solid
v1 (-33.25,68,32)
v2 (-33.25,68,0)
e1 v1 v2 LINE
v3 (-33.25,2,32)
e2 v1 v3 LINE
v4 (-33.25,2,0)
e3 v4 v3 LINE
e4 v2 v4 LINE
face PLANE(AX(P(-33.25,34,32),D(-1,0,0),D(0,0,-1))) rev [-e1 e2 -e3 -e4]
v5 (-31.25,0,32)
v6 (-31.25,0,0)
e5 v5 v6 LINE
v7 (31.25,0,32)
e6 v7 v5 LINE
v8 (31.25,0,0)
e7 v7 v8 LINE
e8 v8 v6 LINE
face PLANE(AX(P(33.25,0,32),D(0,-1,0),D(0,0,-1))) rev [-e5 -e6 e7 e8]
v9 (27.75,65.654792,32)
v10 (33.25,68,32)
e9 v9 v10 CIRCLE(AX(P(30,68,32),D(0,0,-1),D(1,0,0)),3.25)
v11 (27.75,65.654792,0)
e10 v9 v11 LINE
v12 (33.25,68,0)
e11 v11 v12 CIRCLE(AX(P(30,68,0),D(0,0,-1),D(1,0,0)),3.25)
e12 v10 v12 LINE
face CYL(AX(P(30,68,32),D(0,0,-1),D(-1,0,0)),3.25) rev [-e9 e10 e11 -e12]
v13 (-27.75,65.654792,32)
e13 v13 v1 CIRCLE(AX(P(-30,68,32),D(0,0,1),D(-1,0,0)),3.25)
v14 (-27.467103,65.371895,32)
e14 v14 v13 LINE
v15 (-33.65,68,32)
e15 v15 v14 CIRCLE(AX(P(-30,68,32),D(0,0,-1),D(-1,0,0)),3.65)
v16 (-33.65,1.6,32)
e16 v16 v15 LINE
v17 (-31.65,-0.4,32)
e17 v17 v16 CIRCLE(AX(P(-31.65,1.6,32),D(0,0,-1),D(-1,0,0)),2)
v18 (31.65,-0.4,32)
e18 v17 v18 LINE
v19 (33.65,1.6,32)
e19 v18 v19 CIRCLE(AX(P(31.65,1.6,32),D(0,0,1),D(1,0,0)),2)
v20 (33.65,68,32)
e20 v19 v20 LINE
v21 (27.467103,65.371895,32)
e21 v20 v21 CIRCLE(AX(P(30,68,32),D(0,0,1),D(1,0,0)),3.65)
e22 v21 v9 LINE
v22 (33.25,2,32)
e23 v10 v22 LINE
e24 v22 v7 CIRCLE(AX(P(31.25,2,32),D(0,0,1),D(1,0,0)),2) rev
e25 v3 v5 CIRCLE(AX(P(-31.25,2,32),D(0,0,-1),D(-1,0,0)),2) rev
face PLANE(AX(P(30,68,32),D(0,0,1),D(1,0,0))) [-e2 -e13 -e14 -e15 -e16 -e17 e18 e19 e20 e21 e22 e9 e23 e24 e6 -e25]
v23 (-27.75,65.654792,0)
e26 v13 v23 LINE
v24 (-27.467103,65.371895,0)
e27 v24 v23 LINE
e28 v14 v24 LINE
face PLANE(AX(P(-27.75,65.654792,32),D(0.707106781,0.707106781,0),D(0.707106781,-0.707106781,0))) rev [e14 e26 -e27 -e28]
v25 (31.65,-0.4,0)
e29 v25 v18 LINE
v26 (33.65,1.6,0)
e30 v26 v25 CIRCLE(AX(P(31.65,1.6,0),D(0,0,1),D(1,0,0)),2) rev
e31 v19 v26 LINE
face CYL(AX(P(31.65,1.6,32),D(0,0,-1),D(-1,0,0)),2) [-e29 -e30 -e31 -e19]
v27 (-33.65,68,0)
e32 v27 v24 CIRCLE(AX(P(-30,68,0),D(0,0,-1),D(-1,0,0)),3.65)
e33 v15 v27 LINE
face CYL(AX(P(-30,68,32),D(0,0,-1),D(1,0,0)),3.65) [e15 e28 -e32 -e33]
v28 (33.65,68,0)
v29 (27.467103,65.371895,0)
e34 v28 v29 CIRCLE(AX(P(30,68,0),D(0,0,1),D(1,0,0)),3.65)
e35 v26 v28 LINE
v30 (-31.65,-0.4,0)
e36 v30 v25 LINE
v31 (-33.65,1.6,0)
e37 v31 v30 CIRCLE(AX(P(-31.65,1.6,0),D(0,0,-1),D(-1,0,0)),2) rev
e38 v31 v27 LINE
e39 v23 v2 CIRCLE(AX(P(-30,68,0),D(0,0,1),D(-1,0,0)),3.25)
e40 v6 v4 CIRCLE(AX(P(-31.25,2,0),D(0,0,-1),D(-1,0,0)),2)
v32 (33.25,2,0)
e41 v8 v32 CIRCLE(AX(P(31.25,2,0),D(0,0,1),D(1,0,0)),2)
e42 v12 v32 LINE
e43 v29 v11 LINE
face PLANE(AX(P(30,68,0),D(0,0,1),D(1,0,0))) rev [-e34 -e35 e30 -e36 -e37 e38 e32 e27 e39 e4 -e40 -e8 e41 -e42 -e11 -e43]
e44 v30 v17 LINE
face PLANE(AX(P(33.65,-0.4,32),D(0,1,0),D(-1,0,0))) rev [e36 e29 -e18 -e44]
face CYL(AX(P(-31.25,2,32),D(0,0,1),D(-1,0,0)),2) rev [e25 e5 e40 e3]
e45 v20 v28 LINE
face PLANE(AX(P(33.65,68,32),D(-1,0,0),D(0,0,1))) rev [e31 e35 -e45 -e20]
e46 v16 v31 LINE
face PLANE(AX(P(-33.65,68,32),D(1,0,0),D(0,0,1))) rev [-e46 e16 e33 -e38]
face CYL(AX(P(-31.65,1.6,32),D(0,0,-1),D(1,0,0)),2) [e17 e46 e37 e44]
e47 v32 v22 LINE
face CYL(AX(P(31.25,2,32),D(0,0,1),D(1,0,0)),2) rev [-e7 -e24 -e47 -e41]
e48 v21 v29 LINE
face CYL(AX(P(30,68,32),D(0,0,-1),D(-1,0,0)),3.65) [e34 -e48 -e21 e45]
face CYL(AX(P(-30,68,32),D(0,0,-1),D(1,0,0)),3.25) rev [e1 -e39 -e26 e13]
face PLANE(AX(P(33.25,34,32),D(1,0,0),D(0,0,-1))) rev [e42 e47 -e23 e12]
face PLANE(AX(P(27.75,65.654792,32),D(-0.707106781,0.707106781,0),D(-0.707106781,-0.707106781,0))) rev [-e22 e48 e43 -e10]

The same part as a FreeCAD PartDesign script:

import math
import FreeCAD as App
import Part
import Sketcher
Q = App.Units.Quantity


def edges_at(feature, points):
    """Names of the edges that pass closest to the given points."""
    edges = feature.Shape.Edges
    near = lambda p: min(range(len(edges)), key=lambda i: edges[i].distToShape(Part.Vertex(*p))[0])
    return sorted({f"Edge{near(p) + 1}" for p in points})

doc = App.newDocument("Part")
body = doc.addObject("PartDesign::Body", "Body")

# Sketch on XY plane
sketch1 = body.newObject("Sketcher::SketchObject", "Sketch")
sketch1.AttachmentSupport = (doc.getObject("XY_Plane"), [""])
sketch1.MapMode = "FlatFace"
sketch1.addGeometry(Part.LineSegment(App.Vector(33.25, 68, 0), App.Vector(33.25, 0, 0)), False)
sketch1.addGeometry(Part.LineSegment(App.Vector(33.25, 0, 0), App.Vector(0, 0, 0)), False)
sketch1.addGeometry(Part.LineSegment(App.Vector(0, 0, 0), App.Vector(0, -0.4, 0)), False)
sketch1.addGeometry(Part.LineSegment(App.Vector(0, -0.4, 0), App.Vector(33.65, -0.4, 0)), False)
sketch1.addGeometry(Part.LineSegment(App.Vector(33.65, -0.4, 0), App.Vector(33.65, 68, 0)), False)
sketch1.addGeometry(Part.ArcOfCircle(Part.Circle(App.Vector(30, 68, 0), App.Vector(0, 0, 1), 3.65), math.radians(0), math.radians(226)), False)
sketch1.addGeometry(Part.LineSegment(App.Vector(27.47, 65.37, 0), App.Vector(27.75, 65.65, 0)), False)
sketch1.addGeometry(Part.ArcOfCircle(Part.Circle(App.Vector(30, 68, 0), App.Vector(0, 0, 1), 3.25), math.radians(0), math.radians(226)), False)
sketch1.addConstraint(Sketcher.Constraint("Coincident", 0, 2, 1, 1))
sketch1.addConstraint(Sketcher.Constraint("Coincident", 1, 2, 2, 1))
sketch1.addConstraint(Sketcher.Constraint("Coincident", 2, 2, 3, 1))
sketch1.addConstraint(Sketcher.Constraint("Coincident", 3, 2, 4, 1))
sketch1.addConstraint(Sketcher.Constraint("Tangent", 4, 2, 5, 1))
sketch1.addConstraint(Sketcher.Constraint("Coincident", 5, 2, 6, 1))
sketch1.addConstraint(Sketcher.Constraint("Coincident", 6, 2, 7, 2))
sketch1.addConstraint(Sketcher.Constraint("Tangent", 7, 1, 0, 1))
sketch1.addConstraint(Sketcher.Constraint("Vertical", 0))
sketch1.addConstraint(Sketcher.Constraint("Horizontal", 1))
sketch1.addConstraint(Sketcher.Constraint("Vertical", 2))
sketch1.addConstraint(Sketcher.Constraint("Horizontal", 3))
sketch1.addConstraint(Sketcher.Constraint("Vertical", 4))
sketch1.addConstraint(Sketcher.Constraint("Coincident", 1, 2, -1, 1))
sketch1.addConstraint(Sketcher.Constraint("Coincident", 7, 3, 5, 3))
sketch1.addConstraint(Sketcher.Constraint("DistanceY", 0, 2, 0, 1, Q("68 mm")))
sketch1.addConstraint(Sketcher.Constraint("Angle", 6, Q("45 deg")))
sketch1.addConstraint(Sketcher.Constraint("Radius", 5, Q("3.65 mm")))
sketch1.addConstraint(Sketcher.Constraint("Radius", 7, Q("3.25 mm")))
sketch1.addConstraint(Sketcher.Constraint("DistanceY", 2, 2, 2, 1, Q("0.4 mm")))
sketch1.addConstraint(Sketcher.Constraint("DistanceX", -1, 1, 5, 3, Q("30 mm")))
sketch1.addConstraint(Sketcher.Constraint("DistanceX", 6, 2, 4, 2, Q("5.9 mm")))
pad1 = body.newObject("PartDesign::Pad", "Pad")
pad1.Profile = sketch1
pad1.Length = 32
doc.recompute()

fillet = body.newObject("PartDesign::Fillet", "Fillet")
fillet.Base = (pad1, edges_at(pad1, [(33.25, 0, 16), (33.65, -0.4, 16)]))
fillet.Radius = 2
body2 = doc.addObject("PartDesign::Body", "Body001")
doc.recompute()

body2.BaseFeature = body
doc.recompute()

mirroring = doc.addObject("Part::Mirroring", "Mirroring")
mirroring.Source = body
mirroring.Base = App.Vector(0, -0.4, 32)
mirroring.Normal = App.Vector(1, 0, 0)
body3 = doc.addObject("PartDesign::Body", "Body002")
body3.BaseFeature = mirroring
boolean = body2.newObject("PartDesign::Boolean", "Boolean")
boolean.Type = "Fuse"
boolean.addObjects([body3])
doc.recompute()
mirroring.Visibility = False

doc.recompute()
